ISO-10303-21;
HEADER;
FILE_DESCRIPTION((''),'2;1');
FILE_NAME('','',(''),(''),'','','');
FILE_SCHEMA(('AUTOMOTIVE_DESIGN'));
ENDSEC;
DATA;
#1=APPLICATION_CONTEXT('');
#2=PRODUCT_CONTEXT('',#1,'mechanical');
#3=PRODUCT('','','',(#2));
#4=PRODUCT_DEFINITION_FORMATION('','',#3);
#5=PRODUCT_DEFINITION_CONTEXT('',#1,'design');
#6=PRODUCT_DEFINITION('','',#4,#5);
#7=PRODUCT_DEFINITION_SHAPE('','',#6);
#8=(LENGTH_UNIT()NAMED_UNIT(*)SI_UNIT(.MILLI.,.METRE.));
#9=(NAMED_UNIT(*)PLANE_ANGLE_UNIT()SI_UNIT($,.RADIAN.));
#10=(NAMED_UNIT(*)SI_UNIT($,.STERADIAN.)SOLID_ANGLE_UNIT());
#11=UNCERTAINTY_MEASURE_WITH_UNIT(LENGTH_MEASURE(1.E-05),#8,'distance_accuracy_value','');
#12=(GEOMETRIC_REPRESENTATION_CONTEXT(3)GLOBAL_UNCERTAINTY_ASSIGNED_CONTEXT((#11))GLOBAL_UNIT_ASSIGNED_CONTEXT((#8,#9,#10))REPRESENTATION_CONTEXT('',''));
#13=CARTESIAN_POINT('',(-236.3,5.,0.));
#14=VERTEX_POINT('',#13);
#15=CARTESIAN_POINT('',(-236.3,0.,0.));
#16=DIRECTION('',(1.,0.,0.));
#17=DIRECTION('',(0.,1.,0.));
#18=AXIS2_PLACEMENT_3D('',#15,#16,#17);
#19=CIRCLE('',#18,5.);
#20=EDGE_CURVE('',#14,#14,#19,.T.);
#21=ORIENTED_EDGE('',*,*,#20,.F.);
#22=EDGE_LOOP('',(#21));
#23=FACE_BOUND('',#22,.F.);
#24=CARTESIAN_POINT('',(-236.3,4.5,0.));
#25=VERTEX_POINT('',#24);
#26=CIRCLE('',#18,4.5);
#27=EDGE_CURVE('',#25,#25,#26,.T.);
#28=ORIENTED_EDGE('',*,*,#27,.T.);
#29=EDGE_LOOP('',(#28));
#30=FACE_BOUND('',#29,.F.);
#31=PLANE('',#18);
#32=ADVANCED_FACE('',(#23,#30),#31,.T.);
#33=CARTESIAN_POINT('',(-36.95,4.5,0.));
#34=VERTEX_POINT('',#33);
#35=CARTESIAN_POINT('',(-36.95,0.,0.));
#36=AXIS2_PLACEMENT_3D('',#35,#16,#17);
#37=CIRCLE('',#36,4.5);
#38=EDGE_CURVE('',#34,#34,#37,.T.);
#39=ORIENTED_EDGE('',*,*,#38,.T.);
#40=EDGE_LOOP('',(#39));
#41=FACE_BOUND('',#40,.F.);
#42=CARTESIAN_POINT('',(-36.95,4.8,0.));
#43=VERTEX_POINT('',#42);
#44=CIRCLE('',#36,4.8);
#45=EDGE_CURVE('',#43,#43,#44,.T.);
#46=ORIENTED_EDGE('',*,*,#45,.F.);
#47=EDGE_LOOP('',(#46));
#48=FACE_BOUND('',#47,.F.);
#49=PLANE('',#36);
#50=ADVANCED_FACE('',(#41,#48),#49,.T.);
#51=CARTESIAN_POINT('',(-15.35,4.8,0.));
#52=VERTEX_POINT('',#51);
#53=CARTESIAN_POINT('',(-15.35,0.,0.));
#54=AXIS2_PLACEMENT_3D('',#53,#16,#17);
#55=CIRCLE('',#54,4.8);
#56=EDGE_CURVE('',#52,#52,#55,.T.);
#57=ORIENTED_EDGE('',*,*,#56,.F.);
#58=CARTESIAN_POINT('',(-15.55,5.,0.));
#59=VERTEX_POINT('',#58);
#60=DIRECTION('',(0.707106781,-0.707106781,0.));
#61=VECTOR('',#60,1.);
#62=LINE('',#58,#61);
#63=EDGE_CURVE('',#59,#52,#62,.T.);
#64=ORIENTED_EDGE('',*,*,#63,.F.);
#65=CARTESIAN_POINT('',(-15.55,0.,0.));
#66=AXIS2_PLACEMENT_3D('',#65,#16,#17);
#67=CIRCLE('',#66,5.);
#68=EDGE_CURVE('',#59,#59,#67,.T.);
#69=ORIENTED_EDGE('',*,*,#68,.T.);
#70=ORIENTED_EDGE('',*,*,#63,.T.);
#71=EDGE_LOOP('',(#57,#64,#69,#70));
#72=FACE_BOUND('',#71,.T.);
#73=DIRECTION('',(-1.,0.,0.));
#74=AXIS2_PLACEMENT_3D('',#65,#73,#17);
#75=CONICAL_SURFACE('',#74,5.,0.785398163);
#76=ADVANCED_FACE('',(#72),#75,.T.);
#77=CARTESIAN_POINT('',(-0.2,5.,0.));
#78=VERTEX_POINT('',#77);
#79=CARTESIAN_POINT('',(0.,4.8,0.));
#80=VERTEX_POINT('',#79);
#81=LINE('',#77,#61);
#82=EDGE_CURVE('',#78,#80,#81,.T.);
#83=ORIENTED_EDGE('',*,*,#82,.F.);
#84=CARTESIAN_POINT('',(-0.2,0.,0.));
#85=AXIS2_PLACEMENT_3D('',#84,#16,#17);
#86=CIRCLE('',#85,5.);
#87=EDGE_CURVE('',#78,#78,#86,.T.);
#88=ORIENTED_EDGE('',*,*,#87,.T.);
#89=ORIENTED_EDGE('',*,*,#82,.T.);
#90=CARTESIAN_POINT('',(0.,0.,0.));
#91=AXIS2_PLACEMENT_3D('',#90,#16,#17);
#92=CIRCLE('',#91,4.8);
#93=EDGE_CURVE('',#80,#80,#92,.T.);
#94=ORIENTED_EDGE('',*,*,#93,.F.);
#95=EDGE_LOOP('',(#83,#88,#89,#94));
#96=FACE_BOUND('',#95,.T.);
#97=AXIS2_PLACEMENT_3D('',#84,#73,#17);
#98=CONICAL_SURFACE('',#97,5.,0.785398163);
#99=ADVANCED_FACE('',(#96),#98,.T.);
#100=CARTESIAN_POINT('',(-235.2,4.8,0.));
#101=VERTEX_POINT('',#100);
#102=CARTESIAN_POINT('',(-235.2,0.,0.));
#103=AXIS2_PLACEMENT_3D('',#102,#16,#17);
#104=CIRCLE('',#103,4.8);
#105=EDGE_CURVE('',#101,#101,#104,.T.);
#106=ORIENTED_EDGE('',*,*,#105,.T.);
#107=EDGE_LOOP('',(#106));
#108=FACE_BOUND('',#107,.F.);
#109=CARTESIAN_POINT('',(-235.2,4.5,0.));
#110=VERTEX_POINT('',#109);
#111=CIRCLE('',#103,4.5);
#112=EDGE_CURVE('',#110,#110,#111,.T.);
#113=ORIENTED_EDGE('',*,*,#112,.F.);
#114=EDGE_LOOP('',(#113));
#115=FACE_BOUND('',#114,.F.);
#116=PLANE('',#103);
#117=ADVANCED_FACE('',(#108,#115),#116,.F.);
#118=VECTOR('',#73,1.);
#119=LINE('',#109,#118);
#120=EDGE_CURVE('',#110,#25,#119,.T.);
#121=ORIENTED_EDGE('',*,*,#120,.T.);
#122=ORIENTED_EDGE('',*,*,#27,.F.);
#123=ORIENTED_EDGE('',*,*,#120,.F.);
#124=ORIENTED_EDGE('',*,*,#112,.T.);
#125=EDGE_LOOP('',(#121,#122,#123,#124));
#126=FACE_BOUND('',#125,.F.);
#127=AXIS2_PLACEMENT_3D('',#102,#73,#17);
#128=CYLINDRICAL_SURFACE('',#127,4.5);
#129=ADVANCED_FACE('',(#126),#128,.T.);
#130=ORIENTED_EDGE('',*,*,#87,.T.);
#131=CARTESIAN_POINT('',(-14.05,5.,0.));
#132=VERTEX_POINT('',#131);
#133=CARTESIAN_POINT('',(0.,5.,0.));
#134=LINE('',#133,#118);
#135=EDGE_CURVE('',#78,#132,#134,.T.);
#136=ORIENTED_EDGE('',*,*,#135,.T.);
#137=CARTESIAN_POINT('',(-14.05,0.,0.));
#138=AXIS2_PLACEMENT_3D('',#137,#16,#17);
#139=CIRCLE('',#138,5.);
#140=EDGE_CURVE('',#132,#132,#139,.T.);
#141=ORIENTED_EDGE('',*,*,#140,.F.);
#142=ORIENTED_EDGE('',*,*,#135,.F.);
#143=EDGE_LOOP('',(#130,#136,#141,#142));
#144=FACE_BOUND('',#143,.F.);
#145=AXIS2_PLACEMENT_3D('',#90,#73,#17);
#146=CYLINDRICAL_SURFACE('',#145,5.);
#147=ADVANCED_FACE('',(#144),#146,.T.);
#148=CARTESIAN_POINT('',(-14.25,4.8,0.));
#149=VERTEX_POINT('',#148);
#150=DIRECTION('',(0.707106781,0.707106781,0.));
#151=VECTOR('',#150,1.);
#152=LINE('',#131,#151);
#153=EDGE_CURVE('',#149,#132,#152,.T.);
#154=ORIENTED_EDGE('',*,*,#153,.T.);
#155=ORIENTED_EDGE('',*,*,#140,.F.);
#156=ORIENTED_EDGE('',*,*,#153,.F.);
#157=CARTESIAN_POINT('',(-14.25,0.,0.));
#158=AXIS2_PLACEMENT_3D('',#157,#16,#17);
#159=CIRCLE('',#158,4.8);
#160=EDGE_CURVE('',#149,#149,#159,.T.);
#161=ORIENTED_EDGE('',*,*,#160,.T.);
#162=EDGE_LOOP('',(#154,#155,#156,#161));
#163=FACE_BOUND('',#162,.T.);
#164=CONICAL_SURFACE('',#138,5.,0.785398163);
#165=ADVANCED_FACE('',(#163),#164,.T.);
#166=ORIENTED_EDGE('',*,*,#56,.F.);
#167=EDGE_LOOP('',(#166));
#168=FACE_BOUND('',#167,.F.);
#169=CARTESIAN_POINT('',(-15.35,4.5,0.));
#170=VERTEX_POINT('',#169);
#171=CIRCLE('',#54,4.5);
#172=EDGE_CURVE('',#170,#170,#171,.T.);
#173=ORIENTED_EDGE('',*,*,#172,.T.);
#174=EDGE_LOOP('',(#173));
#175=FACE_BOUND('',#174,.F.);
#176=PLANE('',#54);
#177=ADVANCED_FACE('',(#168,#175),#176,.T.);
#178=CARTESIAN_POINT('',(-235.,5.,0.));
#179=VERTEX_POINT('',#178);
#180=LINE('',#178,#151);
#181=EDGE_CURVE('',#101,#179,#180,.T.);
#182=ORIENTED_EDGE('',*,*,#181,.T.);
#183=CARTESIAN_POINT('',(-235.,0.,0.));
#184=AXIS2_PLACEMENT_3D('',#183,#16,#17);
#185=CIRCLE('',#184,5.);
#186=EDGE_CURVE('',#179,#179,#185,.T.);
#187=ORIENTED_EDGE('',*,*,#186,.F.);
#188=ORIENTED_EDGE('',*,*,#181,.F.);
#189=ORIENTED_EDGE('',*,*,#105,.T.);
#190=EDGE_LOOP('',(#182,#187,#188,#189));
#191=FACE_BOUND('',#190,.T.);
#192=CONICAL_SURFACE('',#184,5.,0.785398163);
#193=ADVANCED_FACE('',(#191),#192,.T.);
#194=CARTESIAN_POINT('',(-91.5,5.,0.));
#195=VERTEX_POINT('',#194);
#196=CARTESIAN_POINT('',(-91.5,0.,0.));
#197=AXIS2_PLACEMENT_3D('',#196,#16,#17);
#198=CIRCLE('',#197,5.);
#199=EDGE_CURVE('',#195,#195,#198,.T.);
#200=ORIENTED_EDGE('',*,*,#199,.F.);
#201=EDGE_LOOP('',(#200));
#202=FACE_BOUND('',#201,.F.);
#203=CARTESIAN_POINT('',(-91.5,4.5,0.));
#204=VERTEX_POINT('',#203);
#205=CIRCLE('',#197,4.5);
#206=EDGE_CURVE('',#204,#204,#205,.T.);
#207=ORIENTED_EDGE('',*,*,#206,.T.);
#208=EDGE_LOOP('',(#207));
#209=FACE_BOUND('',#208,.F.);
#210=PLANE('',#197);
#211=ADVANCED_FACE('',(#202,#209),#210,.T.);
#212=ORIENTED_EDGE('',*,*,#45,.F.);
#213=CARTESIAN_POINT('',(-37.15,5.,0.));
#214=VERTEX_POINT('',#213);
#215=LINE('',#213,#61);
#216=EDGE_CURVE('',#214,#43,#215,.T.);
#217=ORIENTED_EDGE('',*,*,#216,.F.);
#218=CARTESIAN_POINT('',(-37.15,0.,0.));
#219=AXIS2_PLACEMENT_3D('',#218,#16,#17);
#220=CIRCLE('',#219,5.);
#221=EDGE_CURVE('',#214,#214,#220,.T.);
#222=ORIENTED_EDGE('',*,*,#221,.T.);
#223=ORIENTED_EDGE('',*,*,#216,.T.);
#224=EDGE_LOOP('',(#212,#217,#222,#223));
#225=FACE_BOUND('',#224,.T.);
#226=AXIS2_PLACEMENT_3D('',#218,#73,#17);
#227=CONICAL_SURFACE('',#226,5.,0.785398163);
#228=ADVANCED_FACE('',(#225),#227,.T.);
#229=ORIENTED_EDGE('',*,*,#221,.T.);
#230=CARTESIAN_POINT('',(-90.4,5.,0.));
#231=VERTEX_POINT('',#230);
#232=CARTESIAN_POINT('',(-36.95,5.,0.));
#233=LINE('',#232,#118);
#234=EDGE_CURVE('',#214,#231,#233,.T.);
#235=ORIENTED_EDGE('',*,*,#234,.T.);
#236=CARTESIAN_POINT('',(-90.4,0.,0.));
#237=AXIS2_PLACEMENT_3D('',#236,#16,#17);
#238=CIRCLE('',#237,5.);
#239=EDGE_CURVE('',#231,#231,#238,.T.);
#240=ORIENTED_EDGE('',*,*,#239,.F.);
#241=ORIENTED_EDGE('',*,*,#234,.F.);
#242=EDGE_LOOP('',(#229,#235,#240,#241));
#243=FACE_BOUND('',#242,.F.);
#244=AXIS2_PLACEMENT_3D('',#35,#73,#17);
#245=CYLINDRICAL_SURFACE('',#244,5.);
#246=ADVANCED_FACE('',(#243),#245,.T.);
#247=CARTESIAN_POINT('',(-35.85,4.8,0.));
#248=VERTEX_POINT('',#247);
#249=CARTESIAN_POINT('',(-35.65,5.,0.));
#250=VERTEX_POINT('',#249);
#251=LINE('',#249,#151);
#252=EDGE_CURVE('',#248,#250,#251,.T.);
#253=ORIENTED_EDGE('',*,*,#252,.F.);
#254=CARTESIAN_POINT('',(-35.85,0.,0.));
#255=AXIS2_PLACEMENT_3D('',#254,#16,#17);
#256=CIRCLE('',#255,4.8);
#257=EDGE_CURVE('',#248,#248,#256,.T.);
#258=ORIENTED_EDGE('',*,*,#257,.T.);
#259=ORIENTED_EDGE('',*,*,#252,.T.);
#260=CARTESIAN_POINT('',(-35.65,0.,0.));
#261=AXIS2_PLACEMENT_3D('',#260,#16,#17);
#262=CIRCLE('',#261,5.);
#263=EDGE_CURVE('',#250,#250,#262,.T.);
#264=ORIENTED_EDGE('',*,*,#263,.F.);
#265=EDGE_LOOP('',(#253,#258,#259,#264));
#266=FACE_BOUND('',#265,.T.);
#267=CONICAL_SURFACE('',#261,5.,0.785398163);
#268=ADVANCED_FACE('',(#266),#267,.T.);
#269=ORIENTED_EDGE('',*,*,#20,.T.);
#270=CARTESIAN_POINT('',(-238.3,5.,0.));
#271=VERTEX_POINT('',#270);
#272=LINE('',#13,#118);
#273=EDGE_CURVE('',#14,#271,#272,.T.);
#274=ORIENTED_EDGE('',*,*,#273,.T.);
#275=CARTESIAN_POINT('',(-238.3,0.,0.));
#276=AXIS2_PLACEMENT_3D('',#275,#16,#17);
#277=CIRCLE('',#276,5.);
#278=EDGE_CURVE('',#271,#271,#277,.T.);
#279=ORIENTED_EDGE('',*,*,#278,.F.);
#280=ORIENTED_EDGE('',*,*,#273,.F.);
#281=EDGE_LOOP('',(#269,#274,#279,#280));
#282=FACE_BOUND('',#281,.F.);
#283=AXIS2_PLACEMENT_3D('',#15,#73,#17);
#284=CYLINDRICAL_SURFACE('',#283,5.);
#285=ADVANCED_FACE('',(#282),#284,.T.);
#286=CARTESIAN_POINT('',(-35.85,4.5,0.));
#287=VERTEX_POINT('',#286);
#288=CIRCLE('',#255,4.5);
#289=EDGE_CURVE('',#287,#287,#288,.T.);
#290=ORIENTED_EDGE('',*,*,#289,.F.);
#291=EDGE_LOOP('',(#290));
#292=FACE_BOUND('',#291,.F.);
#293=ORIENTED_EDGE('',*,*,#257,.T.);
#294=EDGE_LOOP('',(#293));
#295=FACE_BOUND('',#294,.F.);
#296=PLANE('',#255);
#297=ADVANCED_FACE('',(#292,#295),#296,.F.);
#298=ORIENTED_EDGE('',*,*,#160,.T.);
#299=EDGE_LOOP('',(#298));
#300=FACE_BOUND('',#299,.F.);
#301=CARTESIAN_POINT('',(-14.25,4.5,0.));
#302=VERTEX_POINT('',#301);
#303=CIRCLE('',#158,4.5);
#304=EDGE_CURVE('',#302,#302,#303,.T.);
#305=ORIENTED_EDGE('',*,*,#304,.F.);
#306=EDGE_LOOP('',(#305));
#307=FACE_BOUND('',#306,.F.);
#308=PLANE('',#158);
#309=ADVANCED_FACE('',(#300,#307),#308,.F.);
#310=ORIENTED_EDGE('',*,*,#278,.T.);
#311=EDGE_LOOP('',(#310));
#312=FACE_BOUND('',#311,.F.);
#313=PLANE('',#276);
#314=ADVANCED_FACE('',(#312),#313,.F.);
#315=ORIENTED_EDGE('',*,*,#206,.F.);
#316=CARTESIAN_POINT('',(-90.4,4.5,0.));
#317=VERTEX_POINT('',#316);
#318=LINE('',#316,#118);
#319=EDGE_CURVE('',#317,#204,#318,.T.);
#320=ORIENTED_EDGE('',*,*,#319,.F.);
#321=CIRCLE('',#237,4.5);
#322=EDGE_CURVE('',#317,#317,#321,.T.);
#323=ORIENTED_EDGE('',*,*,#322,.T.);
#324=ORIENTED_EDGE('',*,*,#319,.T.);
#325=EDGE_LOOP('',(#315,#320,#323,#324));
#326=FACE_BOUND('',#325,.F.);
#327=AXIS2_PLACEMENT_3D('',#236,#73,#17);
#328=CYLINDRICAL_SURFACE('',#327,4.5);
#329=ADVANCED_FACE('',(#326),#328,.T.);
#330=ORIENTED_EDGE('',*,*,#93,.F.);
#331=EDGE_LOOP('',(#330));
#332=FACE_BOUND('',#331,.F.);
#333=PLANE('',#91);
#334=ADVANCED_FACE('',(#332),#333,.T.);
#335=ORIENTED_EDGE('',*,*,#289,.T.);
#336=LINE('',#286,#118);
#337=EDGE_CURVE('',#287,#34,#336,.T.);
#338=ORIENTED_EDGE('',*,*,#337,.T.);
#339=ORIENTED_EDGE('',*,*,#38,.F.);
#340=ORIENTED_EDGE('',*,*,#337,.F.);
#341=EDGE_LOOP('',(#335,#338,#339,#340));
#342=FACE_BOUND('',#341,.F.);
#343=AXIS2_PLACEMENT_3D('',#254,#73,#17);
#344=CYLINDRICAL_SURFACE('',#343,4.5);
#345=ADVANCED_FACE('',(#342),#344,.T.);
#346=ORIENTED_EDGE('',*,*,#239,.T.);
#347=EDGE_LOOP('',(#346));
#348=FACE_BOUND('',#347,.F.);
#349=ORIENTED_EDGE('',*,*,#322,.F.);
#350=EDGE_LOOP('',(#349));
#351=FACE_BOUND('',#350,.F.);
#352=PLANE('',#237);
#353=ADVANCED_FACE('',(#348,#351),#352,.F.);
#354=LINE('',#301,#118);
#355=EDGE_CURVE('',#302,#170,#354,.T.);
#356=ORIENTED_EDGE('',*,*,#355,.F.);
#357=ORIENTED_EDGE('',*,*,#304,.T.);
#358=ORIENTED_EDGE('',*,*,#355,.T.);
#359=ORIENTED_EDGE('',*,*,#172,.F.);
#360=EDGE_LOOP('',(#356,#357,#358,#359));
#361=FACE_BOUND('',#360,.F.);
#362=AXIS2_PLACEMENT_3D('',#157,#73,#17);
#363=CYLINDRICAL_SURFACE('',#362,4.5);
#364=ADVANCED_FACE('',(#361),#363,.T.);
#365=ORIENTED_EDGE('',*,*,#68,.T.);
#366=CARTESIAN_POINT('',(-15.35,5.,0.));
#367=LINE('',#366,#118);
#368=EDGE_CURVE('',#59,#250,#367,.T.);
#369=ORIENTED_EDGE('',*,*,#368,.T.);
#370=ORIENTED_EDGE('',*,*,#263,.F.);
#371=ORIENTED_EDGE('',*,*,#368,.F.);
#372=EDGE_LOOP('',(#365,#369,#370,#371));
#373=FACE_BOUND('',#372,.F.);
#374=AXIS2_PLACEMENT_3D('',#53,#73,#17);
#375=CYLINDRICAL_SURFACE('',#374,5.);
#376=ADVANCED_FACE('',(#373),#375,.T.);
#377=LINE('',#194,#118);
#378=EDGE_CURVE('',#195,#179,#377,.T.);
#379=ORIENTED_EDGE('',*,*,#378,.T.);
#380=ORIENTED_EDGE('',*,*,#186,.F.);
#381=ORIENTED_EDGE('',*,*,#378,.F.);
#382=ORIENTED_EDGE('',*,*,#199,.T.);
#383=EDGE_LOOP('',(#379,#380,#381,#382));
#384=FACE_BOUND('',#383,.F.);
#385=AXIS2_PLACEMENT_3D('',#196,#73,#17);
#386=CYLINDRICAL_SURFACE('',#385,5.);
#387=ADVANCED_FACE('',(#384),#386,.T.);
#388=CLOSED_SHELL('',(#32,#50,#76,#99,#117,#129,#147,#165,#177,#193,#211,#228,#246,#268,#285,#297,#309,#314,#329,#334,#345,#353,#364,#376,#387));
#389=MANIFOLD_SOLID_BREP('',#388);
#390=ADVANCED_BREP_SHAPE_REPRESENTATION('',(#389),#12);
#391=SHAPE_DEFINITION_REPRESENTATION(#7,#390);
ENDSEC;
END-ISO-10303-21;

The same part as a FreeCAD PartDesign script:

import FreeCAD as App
import Part
import Sketcher


def edges_at(feature, points):
    """Names of the edges that pass closest to the given points."""
    edges = feature.Shape.Edges
    near = lambda p: min(range(len(edges)), key=lambda i: edges[i].distToShape(Part.Vertex(*p))[0])
    return sorted({f"Edge{near(p) + 1}" for p in points})


def add_polygon(sketch, points):
    """Adds a closed chain of lines whose ends are joined by coincident constraints."""
    first, n = sketch.GeometryCount, len(points)
    for a, b in zip(points, points[1:] + points[:1]):
        sketch.addGeometry(Part.LineSegment(App.Vector(*a, 0), App.Vector(*b, 0)), False)
    for i in range(n):
        sketch.addConstraint(Sketcher.Constraint("Coincident", first + i, 2, first + (i + 1) % n, 1))

doc = App.newDocument("Part")
body = doc.addObject("PartDesign::Body", "Body")

# Sketch on XY plane
sketch1 = body.newObject("Sketcher::SketchObject", "Sketch")
sketch1.AttachmentSupport = (doc.getObject("XY_Plane"), [""])
sketch1.MapMode = "FlatFace"
add_polygon(sketch1, [(-238.3, 0), (0, 0), (0, 5), (-14.2, 5), (-14.2, 4.5), (-15.3, 4.5), (-15.3, 5), (-35.9, 5), (-35.9, 4.5), (-37, 4.5), (-37, 5), (-90.4, 5), (-90.4, 4.5), (-91.5, 4.5), (-91.5, 5), (-235.2, 5), (-235.2, 4.5), (-236.3, 4.5), (-236.3, 5), (-238.3, 5)])  # lines 0-19
sketch1.addConstraint([
    Sketcher.Constraint("Horizontal", 0),
    Sketcher.Constraint("Vertical", 1),
    Sketcher.Constraint("Horizontal", 2),
    Sketcher.Constraint("Vertical", 3),
    Sketcher.Constraint("Horizontal", 4),
    Sketcher.Constraint("Vertical", 5),
    Sketcher.Constraint("Horizontal", 6),
    Sketcher.Constraint("Vertical", 7),
    Sketcher.Constraint("Horizontal", 8),
    Sketcher.Constraint("Vertical", 9),
    Sketcher.Constraint("Horizontal", 10),
    Sketcher.Constraint("Vertical", 11),
    Sketcher.Constraint("Horizontal", 12),
    Sketcher.Constraint("Vertical", 13),
    Sketcher.Constraint("Horizontal", 14),
    Sketcher.Constraint("Vertical", 15),
    Sketcher.Constraint("Horizontal", 16),
    Sketcher.Constraint("Vertical", 17),
    Sketcher.Constraint("Horizontal", 18),
    Sketcher.Constraint("Vertical", 19),
    Sketcher.Constraint("Coincident", 0, 2, -1, 1),
    Sketcher.Constraint("Horizontal", 2, 2, 5, 2),
    Sketcher.Constraint("Horizontal", 4, 2, 7, 2),
    Sketcher.Constraint("Horizontal", 6, 2, 9, 2),
    Sketcher.Constraint("Horizontal", 8, 2, 11, 2),
    Sketcher.Constraint("Horizontal", 10, 2, 13, 2),
    Sketcher.Constraint("Horizontal", 12, 2, 15, 2),
    Sketcher.Constraint("Horizontal", 14, 2, 17, 2),
    Sketcher.Constraint("Equal", 4, 8),
    Sketcher.Constraint("Equal", 8, 12),
    Sketcher.Constraint("Equal", 12, 16),
    Sketcher.Constraint("DistanceX", 18, 2, 18, 1, 2.0),
    Sketcher.Constraint("DistanceY", 1, 1, 1, 2, 5.0),
    Sketcher.Constraint("DistanceX", 0, 1, 0, 2, 238.3),
    Sketcher.Constraint("DistanceX", 4, 2, 4, 1, 1.1),
    Sketcher.Constraint("DistanceY", 3, 2, 3, 1, 0.5),
    Sketcher.Constraint("DistanceX", 12, 2, -1, 1, 91.5),
    Sketcher.Constraint("DistanceX", 4, 2, -1, 1, 15.35),
    Sketcher.Constraint("DistanceX", 6, 2, -1, 1, 35.85),
])
revolution = body.newObject("PartDesign::Revolution", "Revolution")
revolution.Profile = sketch1
revolution.ReferenceAxis = (sketch1, ["H_Axis"])
revolution.Angle = 360
doc.recompute()

chamfer = body.newObject("PartDesign::Chamfer", "Chamfer")
chamfer.Base = (revolution, edges_at(revolution, [
    (-235.2, -5, 0),
    (-35.85, -5, 0),
    (-36.95, -5, 0),
    (-14.25, -5, 0),
    (-15.35, -5, 0),
    (0, -5, 0),
]))
chamfer.Size = 0.2

doc.recompute()
